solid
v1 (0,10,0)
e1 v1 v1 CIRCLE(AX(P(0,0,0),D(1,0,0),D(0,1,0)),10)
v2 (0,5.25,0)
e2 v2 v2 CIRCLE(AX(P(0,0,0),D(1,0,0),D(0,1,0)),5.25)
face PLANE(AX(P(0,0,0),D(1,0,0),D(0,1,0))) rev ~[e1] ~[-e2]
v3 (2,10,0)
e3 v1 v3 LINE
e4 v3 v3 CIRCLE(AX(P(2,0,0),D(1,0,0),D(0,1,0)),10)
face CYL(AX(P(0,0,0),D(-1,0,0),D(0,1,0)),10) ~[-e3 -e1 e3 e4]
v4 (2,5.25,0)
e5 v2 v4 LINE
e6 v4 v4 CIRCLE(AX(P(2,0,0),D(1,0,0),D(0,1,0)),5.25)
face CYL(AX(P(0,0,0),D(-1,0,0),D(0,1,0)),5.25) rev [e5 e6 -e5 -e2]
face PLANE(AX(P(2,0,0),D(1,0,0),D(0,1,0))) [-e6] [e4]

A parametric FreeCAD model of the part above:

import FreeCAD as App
import Part
import Sketcher
from FreeCAD import Vector

doc = App.newDocument("Part")
body = doc.addObject("PartDesign::Body", "Body")

# Sketch on YZ plane
sketch1 = body.newObject("Sketcher::SketchObject", "Sketch")
sketch1.AttachmentSupport = (doc.getObject("YZ_Plane"), [""])
sketch1.MapMode = "FlatFace"
sketch1.addGeometry(Part.Circle(Vector(0, 0, 0), Vector(0, 0, 1), 10), False)
sketch1.addGeometry(Part.Circle(Vector(0, 0, 0), Vector(0, 0, 1), 5), False)
sketch1.addConstraint(Sketcher.Constraint("Coincident", 0, 3, -1, 1))
sketch1.addConstraint(Sketcher.Constraint("Coincident", 1, 3, -1, 1))
sketch1.addConstraint(Sketcher.Constraint("Diameter", 0, 20.0))
sketch1.addConstraint(Sketcher.Constraint("Diameter", 1, 10.5))
pad1 = body.newObject("PartDesign::Pad", "Pad")
pad1.Profile = sketch1
pad1.Length = 2

doc.recompute()
